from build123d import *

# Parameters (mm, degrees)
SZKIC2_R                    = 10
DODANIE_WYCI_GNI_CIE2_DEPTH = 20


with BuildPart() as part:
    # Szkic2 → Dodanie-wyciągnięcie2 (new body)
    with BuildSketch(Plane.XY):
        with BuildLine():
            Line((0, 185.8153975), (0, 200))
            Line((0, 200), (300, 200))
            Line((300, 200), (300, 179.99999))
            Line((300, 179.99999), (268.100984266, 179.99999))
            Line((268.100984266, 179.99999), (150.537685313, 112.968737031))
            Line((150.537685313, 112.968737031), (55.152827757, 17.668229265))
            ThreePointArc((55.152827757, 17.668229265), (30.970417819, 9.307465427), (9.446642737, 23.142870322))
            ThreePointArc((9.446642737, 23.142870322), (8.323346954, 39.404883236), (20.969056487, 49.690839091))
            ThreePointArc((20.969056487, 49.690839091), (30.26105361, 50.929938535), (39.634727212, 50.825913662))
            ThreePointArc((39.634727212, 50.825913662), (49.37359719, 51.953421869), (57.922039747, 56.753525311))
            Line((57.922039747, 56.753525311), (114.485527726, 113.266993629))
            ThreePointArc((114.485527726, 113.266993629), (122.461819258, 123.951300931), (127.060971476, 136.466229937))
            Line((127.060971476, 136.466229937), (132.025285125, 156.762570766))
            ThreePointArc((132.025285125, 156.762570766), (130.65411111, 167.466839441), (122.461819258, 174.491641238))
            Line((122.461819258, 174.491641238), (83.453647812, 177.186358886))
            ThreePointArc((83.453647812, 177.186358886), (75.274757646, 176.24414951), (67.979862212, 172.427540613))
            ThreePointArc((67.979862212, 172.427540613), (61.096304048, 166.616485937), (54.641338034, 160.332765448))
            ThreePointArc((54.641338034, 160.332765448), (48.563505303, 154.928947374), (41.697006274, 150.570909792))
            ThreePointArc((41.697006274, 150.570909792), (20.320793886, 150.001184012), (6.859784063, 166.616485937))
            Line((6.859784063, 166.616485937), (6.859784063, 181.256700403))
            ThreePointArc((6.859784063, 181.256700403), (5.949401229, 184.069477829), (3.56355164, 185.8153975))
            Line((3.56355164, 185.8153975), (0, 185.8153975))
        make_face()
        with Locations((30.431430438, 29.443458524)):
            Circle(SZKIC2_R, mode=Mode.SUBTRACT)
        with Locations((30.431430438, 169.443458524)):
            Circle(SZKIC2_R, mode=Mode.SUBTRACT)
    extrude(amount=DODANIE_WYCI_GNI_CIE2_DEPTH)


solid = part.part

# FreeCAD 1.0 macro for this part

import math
import FreeCAD as App
import Part
import Sketcher
Q = App.Units.Quantity

doc = App.newDocument("Part")
params = doc.addObject("Spreadsheet::Sheet", "Params")
for row, (alias, value) in enumerate([
    ("sketch1_diameter", "20 mm"),
    ("sketch1_diameter2", "20 mm"),
    ("sketch1_width", "300 mm"),
    ("pad1_length", "20 mm"),
], start=1):
    params.set(f"A{row}", alias)
    params.set(f"B{row}", "=" + value)
    params.setAlias(f"B{row}", alias)

body = doc.addObject("PartDesign::Body", "Body")

# Sketch on XY plane
sketch1 = body.newObject("Sketcher::SketchObject", "Sketch")
sketch1.AttachmentSupport = (doc.getObject("XY_Plane"), [""])
sketch1.MapMode = "FlatFace"
sketch1.addGeometry([
    Part.LineSegment(App.Vector(0, 200, 0), App.Vector(0, 185.815397, 0)),  # 0
    Part.LineSegment(App.Vector(0, 185.815397, 0), App.Vector(3.563552, 185.815397, 0)),  # 1
    Part.ArcOfCircle(Part.Circle(App.Vector(2.059324, 181.2567, 0), App.Vector(0, 0, 1), 4.800461), math.radians(0), math.radians(71.738719)),  # 2
    Part.LineSegment(App.Vector(6.859784, 181.2567, 0), App.Vector(6.859784, 166.616486, 0)),  # 3
    Part.ArcOfCircle(Part.Circle(App.Vector(30.43143, 171.95281, 0), App.Vector(0, 0, 1), 24.168138), math.radians(-167.243976), math.radians(-62.216402)),  # 4
    Part.ArcOfCircle(Part.Circle(App.Vector(18.159068, 195.245578, 0), App.Vector(0, 0, 1), 50.496143), math.radians(-62.216402), math.radians(-43.740686)),  # 5
    Part.ArcOfCircle(Part.Circle(App.Vector(146.531419, 72.395773, 0), App.Vector(0, 0, 1), 127.187663), math.radians(128.141346), math.radians(136.259314)),  # 6
    Part.ArcOfCircle(Part.Circle(App.Vector(81.900306, 154.700501, 0), App.Vector(0, 0, 1), 22.539447), math.radians(86.048237), math.radians(128.141346)),  # 7
    Part.LineSegment(App.Vector(83.453648, 177.186359, 0), App.Vector(122.461819, 174.491641, 0)),  # 8
    Part.ArcOfCircle(Part.Circle(App.Vector(117.428728, 160.332765, 0), App.Vector(0, 0, 1), 15.026835), math.radians(-13.744222), math.radians(70.431098)),  # 9
    Part.LineSegment(App.Vector(132.025285, 156.762571, 0), App.Vector(127.060971, 136.46623, 0)),  # 10
    Part.ArcOfCircle(Part.Circle(App.Vector(81.775784, 146.005688, 0), App.Vector(0, 0, 1), 46.279039), math.radians(-45.025345), math.radians(-11.895606)),  # 11
    Part.LineSegment(App.Vector(114.485528, 113.266994, 0), App.Vector(57.92204, 56.753525, 0)),  # 12
    Part.ArcOfCircle(Part.Circle(App.Vector(41.697006, 75.636522, 0), App.Vector(0, 0, 1), 24.89617), math.radians(-94.751552), math.radians(-49.329496)),  # 13
    Part.ArcOfCircle(Part.Circle(App.Vector(34.225063, -14.255994, 0), App.Vector(0, 0, 1), 65.306349), math.radians(85.248448), math.radians(101.711387)),  # 14
    Part.ArcOfCircle(Part.Circle(App.Vector(24.562359, 32.356788, 0), App.Vector(0, 0, 1), 17.702575), math.radians(101.711387), math.radians(211.364764)),  # 15
    Part.ArcOfCircle(Part.Circle(App.Vector(34.453412, 38.385966, 0), App.Vector(0, 0, 1), 29.286353), math.radians(-148.635236), math.radians(-45.025345)),  # 16
    Part.LineSegment(App.Vector(55.152828, 17.668229, 0), App.Vector(150.537685, 112.968737, 0)),  # 17
    Part.LineSegment(App.Vector(150.537685, 112.968737, 0), App.Vector(268.100984, 179.99999, 0)),  # 18
    Part.LineSegment(App.Vector(268.100984, 179.99999, 0), App.Vector(300, 179.99999, 0)),  # 19
    Part.LineSegment(App.Vector(300, 179.99999, 0), App.Vector(300, 200, 0)),  # 20
    Part.LineSegment(App.Vector(300, 200, 0), App.Vector(0, 200, 0)),  # 21
    Part.Circle(App.Vector(30.43143, 29.443459, 0), App.Vector(0, 0, 1), 10),  # 22
    Part.Circle(App.Vector(30.43143, 169.443459, 0), App.Vector(0, 0, 1), 10),  # 23
], False)
sketch1.addConstraint([
    Sketcher.Constraint("Coincident", 0, 2, 1, 1),
    Sketcher.Constraint("Coincident", 1, 2, 2, 2),
    Sketcher.Constraint("Coincident", 2, 1, 3, 1),
    Sketcher.Constraint("Coincident", 3, 2, 4, 1),
    Sketcher.Constraint("Coincident", 4, 2, 5, 1),
    Sketcher.Constraint("Coincident", 5, 2, 6, 2),
    Sketcher.Constraint("Coincident", 6, 1, 7, 2),
    Sketcher.Constraint("Coincident", 7, 1, 8, 1),
    Sketcher.Constraint("Coincident", 8, 2, 9, 2),
    Sketcher.Constraint("Coincident", 9, 1, 10, 1),
    Sketcher.Constraint("Coincident", 10, 2, 11, 2),
    Sketcher.Constraint("Coincident", 11, 1, 12, 1),
    Sketcher.Constraint("Coincident", 12, 2, 13, 2),
    Sketcher.Constraint("Coincident", 13, 1, 14, 1),
    Sketcher.Constraint("Coincident", 14, 2, 15, 1),
    Sketcher.Constraint("Coincident", 15, 2, 16, 1),
    Sketcher.Constraint("Coincident", 16, 2, 17, 1),
    Sketcher.Constraint("Coincident", 17, 2, 18, 1),
    Sketcher.Constraint("Coincident", 18, 2, 19, 1),
    Sketcher.Constraint("Coincident", 19, 2, 20, 1),
    Sketcher.Constraint("Coincident", 20, 2, 21, 1),
    Sketcher.Constraint("Coincident", 21, 2, 0, 1),
    Sketcher.Constraint("Vertical", 0),
    Sketcher.Constraint("Horizontal", 1),
    Sketcher.Constraint("Vertical", 3),
    Sketcher.Constraint("Horizontal", 19),
    Sketcher.Constraint("Vertical", 20),
    Sketcher.Constraint("Horizontal", 21),
    Sketcher.Constraint("PointOnObject", 0, 2, -2),
    Sketcher.Constraint("Diameter", 22, Q("20 mm")),
    Sketcher.Constraint("Diameter", 23, Q("20 mm")),
    Sketcher.Constraint("DistanceX", 21, 2, 21, 1, Q("300 mm")),
    Sketcher.Constraint("DistanceY", -1, 1, 20, 2, Q("200 mm")),
    Sketcher.Constraint("Radius", 2, Q("4.800461 mm")),
    Sketcher.Constraint("Radius", 11, Q("46.279039 mm")),
    Sketcher.Constraint("Radius", 13, Q("24.89617 mm")),
    Sketcher.Constraint("Radius", 14, Q("65.306349 mm")),
    Sketcher.Constraint("Radius", 4, Q("24.168138 mm")),
    Sketcher.Constraint("Radius", 5, Q("50.496143 mm")),
    Sketcher.Constraint("Radius", 6, Q("127.187663 mm")),
    Sketcher.Constraint("Radius", 7, Q("22.539447 mm")),
    Sketcher.Constraint("Radius", 9, Q("15.026835 mm")),
    Sketcher.Constraint("Radius", 15, Q("17.702575 mm")),
    Sketcher.Constraint("Radius", 16, Q("29.286353 mm")),
    Sketcher.Constraint("DistanceX", 1, 1, 1, 2, Q("3.563552 mm")),
    Sketcher.Constraint("DistanceY", 20, 1, 20, 2, Q("20.00001 mm")),
    Sketcher.Constraint("DistanceY", -1, 1, 2, 3, Q("181.2567 mm")),
    Sketcher.Constraint("DistanceY", -1, 1, 7, 3, Q("154.700501 mm")),
    Sketcher.Constraint("DistanceY", -1, 1, 2, 1, Q("181.2567 mm")),
    Sketcher.Constraint("DistanceX", 13, 3, 7, 3, Q("40.203299 mm")),
    Sketcher.Constraint("DistanceY", 15, 3, 11, 3, Q("113.6489 mm")),
    Sketcher.Constraint("DistanceY", 4, 2, 4, 3, Q("21.381901 mm")),
    Sketcher.Constraint("DistanceX", 4, 2, 7, 3, Q("40.203299 mm")),
    Sketcher.Constraint("DistanceY", 6, 1, 8, 2, Q("2.064101 mm")),
    Sketcher.Constraint("DistanceX", 11, 3, 9, 1, Q("50.249501 mm")),
    Sketcher.Constraint("DistanceX", 11, 1, 9, 3, Q("2.9432 mm")),
    Sketcher.Constraint("DistanceX", 13, 1, 16, 2, Q("15.518101 mm")),
    Sketcher.Constraint("DistanceX", 9, 1, 17, 2, Q("18.5124 mm")),
    Sketcher.Constraint("DistanceX", 17, 2, 18, 2, Q("117.563299 mm")),
    Sketcher.Constraint("Distance", 12, Q("79.95749 mm")),
    Sketcher.Constraint("Distance", 17, Q("134.834928 mm")),
    Sketcher.Constraint("DistanceX", 19, 1, 19, 2, Q("31.899016 mm")),
    Sketcher.Constraint("DistanceY", 0, 2, 0, 1, Q("14.184603 mm")),
    Sketcher.Constraint("DistanceY", 3, 2, 3, 1, Q("14.640214 mm")),
    Sketcher.Constraint("DistanceX", -1, 1, 4, 3, Q("30.43143 mm")),
    Sketcher.Constraint("DistanceX", -1, 1, 6, 3, Q("146.531419 mm")),
    Sketcher.Constraint("DistanceY", -1, 1, 11, 3, Q("146.005688 mm")),
    Sketcher.Constraint("DistanceY", -1, 1, 13, 3, Q("75.636522 mm")),
    Sketcher.Constraint("DistanceX", -1, 1, 15, 3, Q("24.562359 mm")),
    Sketcher.Constraint("DistanceX", -1, 1, 16, 3, Q("34.453412 mm")),
    Sketcher.Constraint("DistanceX", -1, 1, 22, 3, Q("30.43143 mm")),
    Sketcher.Constraint("DistanceY", -1, 1, 22, 3, Q("29.443459 mm")),
    Sketcher.Constraint("DistanceX", -1, 1, 23, 3, Q("30.43143 mm")),
    Sketcher.Constraint("DistanceY", -1, 1, 23, 3, Q("169.443459 mm")),
    Sketcher.Constraint("DistanceX", -1, 1, 5, 2, Q("54.641338 mm")),
    Sketcher.Constraint("DistanceY", -1, 1, 6, 1, Q("172.427541 mm")),
    Sketcher.Constraint("DistanceY", -1, 1, 7, 1, Q("177.186359 mm")),
    Sketcher.Constraint("DistanceX", -1, 1, 8, 2, Q("122.461819 mm")),
    Sketcher.Constraint("DistanceY", -1, 1, 9, 1, Q("156.762571 mm")),
    Sketcher.Constraint("DistanceX", -1, 1, 10, 2, Q("127.060971 mm")),
    Sketcher.Constraint("DistanceY", -1, 1, 14, 2, Q("49.690839 mm")),
    Sketcher.Constraint("DistanceY", -1, 1, 15, 2, Q("23.14287 mm")),
    Sketcher.Constraint("DistanceY", -1, 1, 16, 2, Q("17.668229 mm")),
])
sketch1.setExpression("Constraints[29]", "Params.sketch1_diameter")
sketch1.setExpression("Constraints[30]", "Params.sketch1_diameter2")
sketch1.setExpression("Constraints[31]", "Params.sketch1_width")
pad1 = body.newObject("PartDesign::Pad", "Pad")
pad1.Profile = sketch1
pad1.setExpression("Length", "Params.pad1_length")

doc.recompute()
